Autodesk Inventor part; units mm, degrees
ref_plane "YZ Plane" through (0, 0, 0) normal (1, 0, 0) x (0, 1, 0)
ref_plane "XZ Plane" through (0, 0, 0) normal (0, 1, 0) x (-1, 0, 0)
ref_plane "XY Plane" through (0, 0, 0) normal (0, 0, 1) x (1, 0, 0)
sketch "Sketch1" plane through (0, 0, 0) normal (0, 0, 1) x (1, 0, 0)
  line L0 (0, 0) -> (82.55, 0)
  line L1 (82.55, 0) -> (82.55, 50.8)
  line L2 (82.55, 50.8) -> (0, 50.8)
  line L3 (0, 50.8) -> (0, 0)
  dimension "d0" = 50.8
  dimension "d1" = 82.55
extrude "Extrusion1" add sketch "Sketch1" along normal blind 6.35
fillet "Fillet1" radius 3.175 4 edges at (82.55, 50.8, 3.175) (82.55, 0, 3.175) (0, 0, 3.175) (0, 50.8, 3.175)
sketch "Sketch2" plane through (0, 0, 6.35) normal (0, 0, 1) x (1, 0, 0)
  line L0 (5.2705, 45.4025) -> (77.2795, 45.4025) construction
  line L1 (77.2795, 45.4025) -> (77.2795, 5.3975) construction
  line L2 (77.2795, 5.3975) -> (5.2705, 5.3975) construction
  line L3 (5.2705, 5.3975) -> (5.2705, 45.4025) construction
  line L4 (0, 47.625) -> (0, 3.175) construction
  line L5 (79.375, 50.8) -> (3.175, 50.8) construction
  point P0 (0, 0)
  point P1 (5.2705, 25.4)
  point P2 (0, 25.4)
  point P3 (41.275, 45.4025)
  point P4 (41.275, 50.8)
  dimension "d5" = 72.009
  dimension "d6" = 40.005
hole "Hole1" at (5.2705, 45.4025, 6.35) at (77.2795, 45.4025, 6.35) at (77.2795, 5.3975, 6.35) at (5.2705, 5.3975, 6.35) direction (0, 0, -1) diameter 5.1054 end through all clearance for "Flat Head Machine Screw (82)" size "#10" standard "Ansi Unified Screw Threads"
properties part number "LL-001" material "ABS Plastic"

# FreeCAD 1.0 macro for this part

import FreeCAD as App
import Part
import Sketcher
Q = App.Units.Quantity


def edges_at(feature, points):
    """Names of the edges that pass closest to the given points."""
    edges = feature.Shape.Edges
    near = lambda p: min(range(len(edges)), key=lambda i: edges[i].distToShape(Part.Vertex(*p))[0])
    return sorted({f"Edge{near(p) + 1}" for p in points})

doc = App.newDocument("Part")
body = doc.addObject("PartDesign::Body", "Body")

# Sketch on XY plane
sketch1 = body.newObject("Sketcher::SketchObject", "Sketch")
sketch1.AttachmentSupport = (doc.getObject("XY_Plane"), [""])
sketch1.MapMode = "FlatFace"
sketch1.addGeometry([
    Part.LineSegment(App.Vector(0, 50.8, 0), App.Vector(0, 0, 0)),
    Part.LineSegment(App.Vector(0, 0, 0), App.Vector(82.55, 0, 0)),
    Part.LineSegment(App.Vector(82.55, 0, 0), App.Vector(82.55, 50.8, 0)),
    Part.LineSegment(App.Vector(82.55, 50.8, 0), App.Vector(0, 50.8, 0)),
], False)
sketch1.addConstraint([
    Sketcher.Constraint("Coincident", 0, 2, 1, 1),
    Sketcher.Constraint("Coincident", 1, 2, 2, 1),
    Sketcher.Constraint("Coincident", 2, 2, 3, 1),
    Sketcher.Constraint("Coincident", 3, 2, 0, 1),
    Sketcher.Constraint("Vertical", 0),
    Sketcher.Constraint("Horizontal", 1),
    Sketcher.Constraint("Vertical", 2),
    Sketcher.Constraint("Horizontal", 3),
    Sketcher.Constraint("Coincident", 0, 2, -1, 1),
    Sketcher.Constraint("DistanceY", 0, 2, 0, 1, Q("2 in")),
    Sketcher.Constraint("DistanceX", 1, 1, 1, 2, Q("3.25 in")),
])
pad1 = body.newObject("PartDesign::Pad", "Pad")
pad1.Profile = sketch1
pad1.Length = Q("0.25 in")
doc.recompute()

fillet = body.newObject("PartDesign::Fillet", "Fillet")
fillet.Base = (pad1, edges_at(pad1, [
    (82.55, 50.8, 3.175),
    (82.55, 0, 3.175),
    (0, 0, 3.175),
    (0, 50.8, 3.175),
]))
fillet.Radius = Q("0.125 in")

# Sketch on XY plane
sketch2 = body.newObject("Sketcher::SketchObject", "Sketch001")
sketch2.AttachmentSupport = (doc.getObject("XY_Plane"), [""])
sketch2.MapMode = "FlatFace"
sketch2.AttachmentOffset = App.Placement(App.Vector(0, 0, 0.25 * 25.4), App.Rotation())
sketch2.addGeometry([
    Part.Circle(App.Vector(5.2705, 45.4025, 0), App.Vector(0, 0, 1), 2.5527),
    Part.Circle(App.Vector(77.2795, 45.4025, 0), App.Vector(0, 0, 1), 2.5527),
    Part.Circle(App.Vector(77.2795, 5.3975, 0), App.Vector(0, 0, 1), 2.5527),
    Part.Circle(App.Vector(5.2705, 5.3975, 0), App.Vector(0, 0, 1), 2.5527),
], False)
sketch2.addConstraint([
    Sketcher.Constraint("Equal", 0, 1),
    Sketcher.Constraint("Equal", 1, 2),
    Sketcher.Constraint("Equal", 2, 3),
    Sketcher.Constraint("Horizontal", 0, 3, 1, 3),
    Sketcher.Constraint("Horizontal", 2, 3, 3, 3),
    Sketcher.Constraint("Vertical", 1, 3, 2, 3),
    Sketcher.Constraint("Vertical", 0, 3, 3, 3),
    Sketcher.Constraint("Diameter", 0, Q("0.201 in")),
    Sketcher.Constraint("DistanceX", 0, 3, 1, 3, Q("2.835 in")),
    Sketcher.Constraint("DistanceY", 2, 3, 1, 3, Q("1.575 in")),
    Sketcher.Constraint("DistanceX", -1, 1, 0, 3, Q("0.2075 in")),
    Sketcher.Constraint("DistanceY", -1, 1, 0, 3, Q("1.7875 in")),
])
doc.recompute()
hole = body.newObject("PartDesign::Hole", "Hole")
hole.Profile = sketch2
hole.ThreadType = "None"
hole.Diameter = Q("0.201 in")
hole.DepthType = "ThroughAll"

doc.recompute()
